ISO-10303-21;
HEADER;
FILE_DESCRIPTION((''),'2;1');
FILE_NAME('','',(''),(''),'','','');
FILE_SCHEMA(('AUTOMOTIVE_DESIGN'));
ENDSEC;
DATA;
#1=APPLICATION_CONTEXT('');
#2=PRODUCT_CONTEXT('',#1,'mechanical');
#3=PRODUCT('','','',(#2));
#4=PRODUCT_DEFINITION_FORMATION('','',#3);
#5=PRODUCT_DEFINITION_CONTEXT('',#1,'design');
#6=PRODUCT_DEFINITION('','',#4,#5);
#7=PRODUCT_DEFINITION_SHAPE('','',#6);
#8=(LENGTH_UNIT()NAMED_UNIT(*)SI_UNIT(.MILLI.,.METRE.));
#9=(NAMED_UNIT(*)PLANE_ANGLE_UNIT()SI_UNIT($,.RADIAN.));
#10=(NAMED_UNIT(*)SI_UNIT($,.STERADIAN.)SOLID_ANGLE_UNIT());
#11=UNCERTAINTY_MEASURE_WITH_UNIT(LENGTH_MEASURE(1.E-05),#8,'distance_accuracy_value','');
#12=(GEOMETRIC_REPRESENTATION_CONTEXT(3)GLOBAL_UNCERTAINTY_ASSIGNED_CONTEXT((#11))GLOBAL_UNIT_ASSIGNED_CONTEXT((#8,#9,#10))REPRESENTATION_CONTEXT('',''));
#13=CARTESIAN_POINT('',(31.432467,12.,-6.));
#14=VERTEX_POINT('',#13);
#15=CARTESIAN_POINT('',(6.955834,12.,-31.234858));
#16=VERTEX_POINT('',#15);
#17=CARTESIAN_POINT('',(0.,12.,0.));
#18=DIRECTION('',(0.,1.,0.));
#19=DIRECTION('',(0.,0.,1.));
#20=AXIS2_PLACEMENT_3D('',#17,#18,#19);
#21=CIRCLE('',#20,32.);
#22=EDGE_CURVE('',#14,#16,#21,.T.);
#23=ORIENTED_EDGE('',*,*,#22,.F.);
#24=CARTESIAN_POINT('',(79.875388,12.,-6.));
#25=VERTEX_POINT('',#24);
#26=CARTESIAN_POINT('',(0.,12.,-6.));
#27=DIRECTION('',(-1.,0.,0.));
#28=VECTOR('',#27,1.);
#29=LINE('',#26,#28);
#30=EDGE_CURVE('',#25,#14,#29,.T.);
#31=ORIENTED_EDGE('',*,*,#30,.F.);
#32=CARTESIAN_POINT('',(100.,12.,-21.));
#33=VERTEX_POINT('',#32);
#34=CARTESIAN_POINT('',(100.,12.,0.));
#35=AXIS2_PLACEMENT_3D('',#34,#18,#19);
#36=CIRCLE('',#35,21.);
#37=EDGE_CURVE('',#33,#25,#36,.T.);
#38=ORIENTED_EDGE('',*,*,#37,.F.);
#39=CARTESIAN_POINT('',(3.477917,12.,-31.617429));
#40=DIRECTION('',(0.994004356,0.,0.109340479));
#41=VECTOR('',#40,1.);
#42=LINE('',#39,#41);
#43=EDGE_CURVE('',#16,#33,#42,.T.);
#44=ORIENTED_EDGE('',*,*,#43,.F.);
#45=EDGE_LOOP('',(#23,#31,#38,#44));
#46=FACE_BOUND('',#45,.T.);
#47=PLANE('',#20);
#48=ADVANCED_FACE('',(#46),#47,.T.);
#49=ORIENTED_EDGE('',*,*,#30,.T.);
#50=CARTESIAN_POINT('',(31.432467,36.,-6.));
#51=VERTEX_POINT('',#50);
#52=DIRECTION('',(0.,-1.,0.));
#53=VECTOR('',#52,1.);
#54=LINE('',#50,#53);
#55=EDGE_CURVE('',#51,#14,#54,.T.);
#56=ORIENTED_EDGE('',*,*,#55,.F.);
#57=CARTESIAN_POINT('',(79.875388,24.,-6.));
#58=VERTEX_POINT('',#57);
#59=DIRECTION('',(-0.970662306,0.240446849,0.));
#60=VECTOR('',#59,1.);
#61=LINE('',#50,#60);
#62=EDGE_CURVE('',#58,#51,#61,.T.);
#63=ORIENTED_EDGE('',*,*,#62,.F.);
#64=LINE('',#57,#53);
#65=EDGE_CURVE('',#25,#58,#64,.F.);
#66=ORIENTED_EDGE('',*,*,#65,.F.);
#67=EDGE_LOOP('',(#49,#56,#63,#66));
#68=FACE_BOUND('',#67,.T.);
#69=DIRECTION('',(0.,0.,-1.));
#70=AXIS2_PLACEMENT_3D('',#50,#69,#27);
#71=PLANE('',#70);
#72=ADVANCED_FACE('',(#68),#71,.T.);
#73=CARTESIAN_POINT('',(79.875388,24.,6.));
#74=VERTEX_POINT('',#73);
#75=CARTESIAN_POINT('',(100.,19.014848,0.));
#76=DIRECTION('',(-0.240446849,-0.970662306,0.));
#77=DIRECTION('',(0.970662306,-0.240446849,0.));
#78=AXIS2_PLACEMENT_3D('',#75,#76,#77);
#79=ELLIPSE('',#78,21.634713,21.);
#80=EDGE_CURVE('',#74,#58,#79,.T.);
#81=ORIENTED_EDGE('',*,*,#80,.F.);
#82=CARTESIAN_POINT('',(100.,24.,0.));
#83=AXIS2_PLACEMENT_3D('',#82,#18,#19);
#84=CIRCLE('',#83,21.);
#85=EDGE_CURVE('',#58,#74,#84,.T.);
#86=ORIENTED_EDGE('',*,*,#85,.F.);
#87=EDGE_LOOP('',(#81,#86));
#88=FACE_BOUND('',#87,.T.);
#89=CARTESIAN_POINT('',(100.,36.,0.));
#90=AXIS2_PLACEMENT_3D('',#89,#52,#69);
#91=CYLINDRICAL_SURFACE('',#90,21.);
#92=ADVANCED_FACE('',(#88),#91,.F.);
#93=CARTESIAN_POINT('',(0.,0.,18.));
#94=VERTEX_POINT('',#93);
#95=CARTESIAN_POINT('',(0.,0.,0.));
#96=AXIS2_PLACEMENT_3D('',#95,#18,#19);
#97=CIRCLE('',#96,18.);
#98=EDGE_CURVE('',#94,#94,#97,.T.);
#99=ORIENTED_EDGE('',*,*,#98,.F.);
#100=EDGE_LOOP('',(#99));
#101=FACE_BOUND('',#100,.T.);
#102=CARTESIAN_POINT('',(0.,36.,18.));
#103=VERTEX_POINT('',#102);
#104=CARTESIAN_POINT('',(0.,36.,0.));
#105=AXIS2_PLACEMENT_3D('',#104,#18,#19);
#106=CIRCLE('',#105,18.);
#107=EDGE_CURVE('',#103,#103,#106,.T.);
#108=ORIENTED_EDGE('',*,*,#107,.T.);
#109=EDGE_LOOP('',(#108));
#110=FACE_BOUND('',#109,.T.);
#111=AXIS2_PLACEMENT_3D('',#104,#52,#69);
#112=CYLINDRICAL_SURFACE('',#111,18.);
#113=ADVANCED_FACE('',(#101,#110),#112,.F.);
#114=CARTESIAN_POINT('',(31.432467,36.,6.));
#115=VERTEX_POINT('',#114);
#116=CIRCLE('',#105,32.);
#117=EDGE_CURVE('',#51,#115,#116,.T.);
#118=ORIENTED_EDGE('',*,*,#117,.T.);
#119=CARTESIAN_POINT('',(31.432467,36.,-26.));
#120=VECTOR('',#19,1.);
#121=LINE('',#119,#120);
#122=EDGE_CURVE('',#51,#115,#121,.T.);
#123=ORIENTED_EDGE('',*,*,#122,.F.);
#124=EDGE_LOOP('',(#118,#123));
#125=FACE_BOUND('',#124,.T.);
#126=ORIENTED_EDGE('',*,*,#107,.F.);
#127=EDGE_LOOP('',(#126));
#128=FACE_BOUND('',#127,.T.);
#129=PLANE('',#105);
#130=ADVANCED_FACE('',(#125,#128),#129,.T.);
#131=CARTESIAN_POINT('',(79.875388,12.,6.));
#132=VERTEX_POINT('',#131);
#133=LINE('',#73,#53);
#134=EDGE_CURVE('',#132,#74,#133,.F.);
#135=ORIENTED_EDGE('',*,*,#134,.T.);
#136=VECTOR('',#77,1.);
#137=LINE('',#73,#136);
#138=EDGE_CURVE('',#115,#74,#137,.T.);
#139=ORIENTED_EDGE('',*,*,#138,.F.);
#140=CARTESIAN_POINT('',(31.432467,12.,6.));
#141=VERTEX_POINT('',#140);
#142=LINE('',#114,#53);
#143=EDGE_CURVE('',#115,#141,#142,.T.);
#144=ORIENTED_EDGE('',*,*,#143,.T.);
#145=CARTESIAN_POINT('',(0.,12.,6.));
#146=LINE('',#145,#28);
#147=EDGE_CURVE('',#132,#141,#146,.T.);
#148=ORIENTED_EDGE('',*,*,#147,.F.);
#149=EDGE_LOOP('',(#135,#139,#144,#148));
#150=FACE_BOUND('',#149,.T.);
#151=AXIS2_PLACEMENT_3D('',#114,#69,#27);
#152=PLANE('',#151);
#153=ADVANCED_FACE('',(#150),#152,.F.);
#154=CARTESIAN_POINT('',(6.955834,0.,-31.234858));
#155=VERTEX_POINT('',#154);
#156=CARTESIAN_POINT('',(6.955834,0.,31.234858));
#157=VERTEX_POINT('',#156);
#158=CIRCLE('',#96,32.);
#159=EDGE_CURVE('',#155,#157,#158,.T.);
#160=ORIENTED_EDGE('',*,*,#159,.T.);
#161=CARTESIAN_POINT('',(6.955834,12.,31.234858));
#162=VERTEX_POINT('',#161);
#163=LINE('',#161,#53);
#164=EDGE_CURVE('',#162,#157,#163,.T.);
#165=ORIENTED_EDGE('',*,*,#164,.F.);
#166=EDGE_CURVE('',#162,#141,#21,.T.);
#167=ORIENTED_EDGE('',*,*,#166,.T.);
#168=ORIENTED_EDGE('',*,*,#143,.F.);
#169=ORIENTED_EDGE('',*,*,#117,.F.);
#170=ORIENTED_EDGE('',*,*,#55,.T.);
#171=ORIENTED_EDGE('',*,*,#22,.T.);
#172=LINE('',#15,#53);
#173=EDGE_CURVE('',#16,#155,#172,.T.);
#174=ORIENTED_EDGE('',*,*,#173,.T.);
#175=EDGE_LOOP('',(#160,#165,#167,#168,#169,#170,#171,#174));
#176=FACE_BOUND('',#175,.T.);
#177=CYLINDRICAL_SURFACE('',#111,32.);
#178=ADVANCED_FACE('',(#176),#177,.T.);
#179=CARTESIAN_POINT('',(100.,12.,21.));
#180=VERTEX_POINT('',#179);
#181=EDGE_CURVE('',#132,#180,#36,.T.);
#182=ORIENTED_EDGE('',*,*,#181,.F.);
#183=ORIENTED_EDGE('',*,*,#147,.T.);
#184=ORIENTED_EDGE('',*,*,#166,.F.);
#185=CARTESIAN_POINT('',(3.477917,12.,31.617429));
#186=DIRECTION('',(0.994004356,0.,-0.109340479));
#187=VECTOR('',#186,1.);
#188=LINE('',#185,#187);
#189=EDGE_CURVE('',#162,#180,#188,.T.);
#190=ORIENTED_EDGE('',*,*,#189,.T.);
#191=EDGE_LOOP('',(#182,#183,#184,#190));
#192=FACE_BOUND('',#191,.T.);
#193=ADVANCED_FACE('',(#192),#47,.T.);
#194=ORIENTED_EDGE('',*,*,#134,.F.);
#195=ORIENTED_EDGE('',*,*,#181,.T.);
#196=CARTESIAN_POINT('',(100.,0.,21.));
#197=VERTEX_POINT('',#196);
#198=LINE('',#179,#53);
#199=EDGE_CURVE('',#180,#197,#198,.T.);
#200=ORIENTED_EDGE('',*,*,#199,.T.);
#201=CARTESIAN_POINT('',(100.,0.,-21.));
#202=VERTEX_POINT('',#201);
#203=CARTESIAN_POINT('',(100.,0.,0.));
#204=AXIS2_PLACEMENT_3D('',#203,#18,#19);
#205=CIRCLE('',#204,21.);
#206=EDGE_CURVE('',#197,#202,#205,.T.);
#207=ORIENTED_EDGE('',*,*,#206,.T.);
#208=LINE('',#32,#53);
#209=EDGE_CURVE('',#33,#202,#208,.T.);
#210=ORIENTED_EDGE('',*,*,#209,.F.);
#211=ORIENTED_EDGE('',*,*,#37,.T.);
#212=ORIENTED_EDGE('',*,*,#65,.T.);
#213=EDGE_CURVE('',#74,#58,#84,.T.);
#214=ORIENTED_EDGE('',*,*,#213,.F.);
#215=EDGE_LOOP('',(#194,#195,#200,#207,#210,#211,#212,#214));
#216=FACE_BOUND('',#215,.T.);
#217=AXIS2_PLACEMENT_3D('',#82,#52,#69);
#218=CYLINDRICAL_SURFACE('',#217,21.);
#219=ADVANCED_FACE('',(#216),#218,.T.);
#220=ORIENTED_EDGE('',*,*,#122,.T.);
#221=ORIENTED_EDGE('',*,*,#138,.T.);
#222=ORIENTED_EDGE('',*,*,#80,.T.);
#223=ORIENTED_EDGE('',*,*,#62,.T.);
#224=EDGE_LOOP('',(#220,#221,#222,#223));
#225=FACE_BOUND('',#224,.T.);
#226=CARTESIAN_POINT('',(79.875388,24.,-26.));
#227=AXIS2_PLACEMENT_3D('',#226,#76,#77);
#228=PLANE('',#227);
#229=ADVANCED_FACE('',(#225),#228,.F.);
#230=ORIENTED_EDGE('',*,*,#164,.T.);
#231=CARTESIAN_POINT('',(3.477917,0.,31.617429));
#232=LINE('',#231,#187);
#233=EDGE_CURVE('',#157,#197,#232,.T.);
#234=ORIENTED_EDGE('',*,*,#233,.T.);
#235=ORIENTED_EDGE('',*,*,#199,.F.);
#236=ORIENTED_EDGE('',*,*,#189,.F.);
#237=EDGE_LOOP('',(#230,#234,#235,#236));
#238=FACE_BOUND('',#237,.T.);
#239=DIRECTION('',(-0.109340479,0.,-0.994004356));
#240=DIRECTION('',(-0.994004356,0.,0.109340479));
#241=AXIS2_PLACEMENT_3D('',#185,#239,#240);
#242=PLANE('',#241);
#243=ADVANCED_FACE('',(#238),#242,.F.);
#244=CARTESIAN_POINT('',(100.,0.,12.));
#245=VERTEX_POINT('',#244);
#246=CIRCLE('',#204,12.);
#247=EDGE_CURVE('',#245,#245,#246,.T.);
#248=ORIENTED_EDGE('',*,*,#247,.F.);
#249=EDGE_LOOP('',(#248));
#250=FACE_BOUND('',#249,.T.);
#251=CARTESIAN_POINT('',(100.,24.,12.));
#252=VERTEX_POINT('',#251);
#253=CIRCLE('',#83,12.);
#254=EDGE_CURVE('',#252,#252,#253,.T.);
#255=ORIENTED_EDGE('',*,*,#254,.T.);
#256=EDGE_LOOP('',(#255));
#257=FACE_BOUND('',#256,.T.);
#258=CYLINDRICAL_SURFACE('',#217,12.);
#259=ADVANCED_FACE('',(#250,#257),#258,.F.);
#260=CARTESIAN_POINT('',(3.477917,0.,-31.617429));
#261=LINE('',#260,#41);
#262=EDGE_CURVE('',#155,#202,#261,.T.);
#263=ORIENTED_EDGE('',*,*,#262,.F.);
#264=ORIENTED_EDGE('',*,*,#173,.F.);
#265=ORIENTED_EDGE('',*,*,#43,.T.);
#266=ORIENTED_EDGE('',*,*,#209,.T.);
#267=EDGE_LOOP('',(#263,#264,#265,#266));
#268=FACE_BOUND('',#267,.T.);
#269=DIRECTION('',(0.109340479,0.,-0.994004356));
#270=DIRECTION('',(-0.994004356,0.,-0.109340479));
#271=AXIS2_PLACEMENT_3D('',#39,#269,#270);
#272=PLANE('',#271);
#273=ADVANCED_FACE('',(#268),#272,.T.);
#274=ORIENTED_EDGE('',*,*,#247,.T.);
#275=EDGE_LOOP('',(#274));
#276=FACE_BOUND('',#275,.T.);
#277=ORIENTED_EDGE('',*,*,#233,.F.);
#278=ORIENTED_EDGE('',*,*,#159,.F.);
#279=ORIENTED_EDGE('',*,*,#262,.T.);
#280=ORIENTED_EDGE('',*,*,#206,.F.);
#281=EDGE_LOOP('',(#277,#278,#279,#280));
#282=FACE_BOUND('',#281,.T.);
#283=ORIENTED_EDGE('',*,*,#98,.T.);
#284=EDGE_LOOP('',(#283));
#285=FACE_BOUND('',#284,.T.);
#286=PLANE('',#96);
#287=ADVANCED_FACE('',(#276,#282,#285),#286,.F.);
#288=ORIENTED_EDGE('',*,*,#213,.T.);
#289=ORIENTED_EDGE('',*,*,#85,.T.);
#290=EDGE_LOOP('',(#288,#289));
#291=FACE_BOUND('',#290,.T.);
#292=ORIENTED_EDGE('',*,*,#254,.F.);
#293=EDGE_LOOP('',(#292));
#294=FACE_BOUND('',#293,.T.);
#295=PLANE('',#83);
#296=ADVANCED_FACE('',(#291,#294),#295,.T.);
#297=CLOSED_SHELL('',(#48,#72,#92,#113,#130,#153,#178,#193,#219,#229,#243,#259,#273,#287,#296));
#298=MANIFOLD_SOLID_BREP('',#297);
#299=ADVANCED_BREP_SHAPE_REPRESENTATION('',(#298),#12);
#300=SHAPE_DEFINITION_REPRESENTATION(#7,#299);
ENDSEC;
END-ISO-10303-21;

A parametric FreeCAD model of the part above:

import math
import FreeCAD as App
import Part
import Sketcher

V = App.Vector


def add_polygon(sketch, points):
    """Adds a closed chain of lines whose ends are joined by coincident constraints."""
    first, n = sketch.GeometryCount, len(points)
    for a, b in zip(points, points[1:] + points[:1]):
        sketch.addGeometry(Part.LineSegment(App.Vector(*a, 0), App.Vector(*b, 0)), False)
    for i in range(n):
        sketch.addConstraint(Sketcher.Constraint("Coincident", first + i, 2, first + (i + 1) % n, 1))

doc = App.newDocument("Part")
params = doc.addObject("Spreadsheet::Sheet", "Params")
for row, (alias, value) in enumerate([
    ("sketch1_diameter", "64 mm"),
    ("sketch1_diameter2", "36 mm"),
    ("pad1_length", "36 mm"),
    ("sketch2_diameter", "42 mm"),
    ("sketch2_diameter2", "24 mm"),
    ("pad2_length", "24 mm"),
    ("sketch3_radius", "32 mm"),
    ("sketch3_radius2", "21 mm"),
    ("pad3_length", "12 mm"),
    ("sketch4_radius", "21 mm"),
    ("sketch4_radius2", "32 mm"),
    ("pad4_length", "36 mm"),
    ("sketch5_height", "12 mm"),
    ("pocket1_length", "32 mm"),
], start=1):
    params.set(f"A{row}", alias)
    params.set(f"B{row}", "=" + value)
    params.setAlias(f"B{row}", alias)

body = doc.addObject("PartDesign::Body", "Body")

# Sketch on XZ plane
sketch1 = body.newObject("Sketcher::SketchObject", "Sketch")
sketch1.AttachmentSupport = (doc.getObject("XZ_Plane"), [""])
sketch1.MapMode = "FlatFace"
sketch1.addGeometry([
    Part.Circle(V(0, 0, 0), V(0, 0, 1), 32),
    Part.Circle(V(0, 0, 0), V(0, 0, 1), 18),
], False)
sketch1.addConstraint([
    Sketcher.Constraint("Coincident", 0, 3, -1, 1),
    Sketcher.Constraint("Coincident", 1, 3, -1, 1),
    Sketcher.Constraint("Diameter", 0, 64.0),
    Sketcher.Constraint("Diameter", 1, 36.0),
])
sketch1.setExpression("Constraints[2]", "Params.sketch1_diameter")
sketch1.setExpression("Constraints[3]", "Params.sketch1_diameter2")
pad1 = body.newObject("PartDesign::Pad", "Pad")
pad1.Profile = sketch1
pad1.setExpression("Length", "Params.pad1_length")
pad1.Reversed = True
body2 = doc.addObject("PartDesign::Body", "Body001")

# Sketch on XZ plane
sketch2 = body2.newObject("Sketcher::SketchObject", "Sketch001")
sketch2.AttachmentSupport = (doc.getObject("XZ_Plane001"), [""])
sketch2.MapMode = "FlatFace"
sketch2.addGeometry([
    Part.Circle(V(100, 0, 0), V(0, 0, 1), 21),
    Part.Circle(V(100, 0, 0), V(0, 0, 1), 12),
], False)
sketch2.addConstraint([
    Sketcher.Constraint("Coincident", 1, 3, 0, 3),
    Sketcher.Constraint("PointOnObject", 0, 3, -1),
    Sketcher.Constraint("Diameter", 0, 42.0),
    Sketcher.Constraint("Diameter", 1, 24.0),
    Sketcher.Constraint("DistanceX", -1, 1, 0, 3, 100.0),
])
sketch2.setExpression("Constraints[2]", "Params.sketch2_diameter")
sketch2.setExpression("Constraints[3]", "Params.sketch2_diameter2")
pad2 = body2.newObject("PartDesign::Pad", "Pad001")
pad2.Profile = sketch2
pad2.setExpression("Length", "Params.pad2_length")
pad2.Reversed = True
body.AllowCompound = True
doc.recompute()

boolean = body.newObject("PartDesign::Boolean", "Boolean")
boolean.Type = "Fuse"
boolean.addObjects([body2])

# Sketch on XZ plane
sketch3 = body.newObject("Sketcher::SketchObject", "Sketch002")
sketch3.AttachmentSupport = (doc.getObject("XZ_Plane"), [""])
sketch3.MapMode = "FlatFace"
sketch3.addGeometry([
    Part.LineSegment(V(100, -21, 0), V(6.955834, -31.234858, 0)),
    Part.ArcOfCircle(Part.Circle(V(0, 0, 0), V(0, 0, 1), 32), math.radians(-77.445403), math.radians(77.445403)),
    Part.LineSegment(V(6.955834, 31.234858, 0), V(100, 21, 0)),
    Part.ArcOfCircle(Part.Circle(V(100, 0, 0), V(0, 0, 1), 21), math.radians(90), math.radians(270)),
], False)
sketch3.addConstraint([
    Sketcher.Constraint("Coincident", 0, 2, 1, 1),
    Sketcher.Constraint("Coincident", 1, 2, 2, 1),
    Sketcher.Constraint("Coincident", 2, 2, 3, 1),
    Sketcher.Constraint("Coincident", 3, 2, 0, 1),
    Sketcher.Constraint("Coincident", 1, 3, -1, 1),
    Sketcher.Constraint("Symmetric", 2, 2, 3, 2, -1),
    Sketcher.Constraint("Vertical", 0, 2, 1, 2),
    Sketcher.Constraint("Vertical", 3, 3, 2, 2),
    Sketcher.Constraint("Radius", 1, 32.0),
    Sketcher.Constraint("Radius", 3, 21.0),
    Sketcher.Constraint("DistanceX", -1, 1, 3, 3, 100.0),
    Sketcher.Constraint("Distance", 0, 93.60539),
])
sketch3.setExpression("Constraints[8]", "Params.sketch3_radius")
sketch3.setExpression("Constraints[9]", "Params.sketch3_radius2")
pad3 = body.newObject("PartDesign::Pad", "Pad002")
pad3.Profile = sketch3
pad3.setExpression("Length", "Params.pad3_length")
pad3.Reversed = True

# Sketch on XZ plane
sketch4 = body.newObject("Sketcher::SketchObject", "Sketch003")
sketch4.AttachmentSupport = (doc.getObject("XZ_Plane"), [""])
sketch4.MapMode = "FlatFace"
sketch4.addGeometry([
    Part.LineSegment(V(31.432467, 6, 0), V(79.875388, 6, 0)),
    Part.ArcOfCircle(Part.Circle(V(100, 0, 0), V(0, 0, 1), 21), math.radians(163.39845), math.radians(196.60155)),
    Part.LineSegment(V(79.875388, -6, 0), V(31.432467, -6, 0)),
    Part.ArcOfCircle(Part.Circle(V(0, 0, 0), V(0, 0, 1), 32), math.radians(-10.806923), math.radians(10.806923)),
], False)
sketch4.addConstraint([
    Sketcher.Constraint("Coincident", 0, 2, 1, 1),
    Sketcher.Constraint("Coincident", 1, 2, 2, 1),
    Sketcher.Constraint("Coincident", 2, 2, 3, 1),
    Sketcher.Constraint("Coincident", 3, 2, 0, 1),
    Sketcher.Constraint("Horizontal", 0),
    Sketcher.Constraint("Horizontal", 2),
    Sketcher.Constraint("Coincident", 3, 3, -1, 1),
    Sketcher.Constraint("Symmetric", 0, 2, 1, 2, -1),
    Sketcher.Constraint("Radius", 1, 21.0),
    Sketcher.Constraint("Radius", 3, 32.0),
    Sketcher.Constraint("DistanceX", -1, 1, 1, 3, 100.0),
    Sketcher.Constraint("DistanceY", -1, 1, 0, 2, 6.0),
])
sketch4.setExpression("Constraints[8]", "Params.sketch4_radius")
sketch4.setExpression("Constraints[9]", "Params.sketch4_radius2")
pad4 = body.newObject("PartDesign::Pad", "Pad003")
pad4.Profile = sketch4
pad4.setExpression("Length", "Params.pad4_length")
pad4.Reversed = True

# Sketch on XY plane
sketch5 = body.newObject("Sketcher::SketchObject", "Sketch004")
sketch5.AttachmentSupport = (doc.getObject("XY_Plane"), [""])
sketch5.MapMode = "FlatFace"
sketch5.AttachmentOffset = App.Placement(V(0, 0, 6), App.Rotation())
add_polygon(sketch5, [(31.432467, 36), (79.875388, 24), (79.875388, 36)])  # lines 0-2
sketch5.addConstraint([
    Sketcher.Constraint("Vertical", 1),
    Sketcher.Constraint("Horizontal", 2),
    Sketcher.Constraint("DistanceY", 1, 1, 1, 2, 12.0),
    Sketcher.Constraint("DistanceY", -1, 1, 0, 2, 24.0),
    Sketcher.Constraint("DistanceX", 2, 2, 2, 1, 48.442921),
    Sketcher.Constraint("DistanceX", -1, 1, 0, 2, 79.875388),
])
sketch5.setExpression("Constraints[5]", "Params.sketch5_height")
pocket1 = body.newObject("PartDesign::Pocket", "Pocket")
pocket1.Profile = sketch5
pocket1.setExpression("Length", "Params.pocket1_length")

doc.recompute()
